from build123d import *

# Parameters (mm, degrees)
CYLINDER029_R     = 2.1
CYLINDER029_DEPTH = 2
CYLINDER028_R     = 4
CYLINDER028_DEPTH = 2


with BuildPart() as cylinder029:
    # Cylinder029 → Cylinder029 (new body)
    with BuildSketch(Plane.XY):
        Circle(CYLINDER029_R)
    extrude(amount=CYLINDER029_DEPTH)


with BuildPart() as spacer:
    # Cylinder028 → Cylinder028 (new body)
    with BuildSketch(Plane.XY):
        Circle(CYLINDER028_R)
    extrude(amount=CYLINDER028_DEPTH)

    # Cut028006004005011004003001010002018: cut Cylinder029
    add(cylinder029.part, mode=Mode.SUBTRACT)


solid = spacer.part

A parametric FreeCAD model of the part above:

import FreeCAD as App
import Part
import Sketcher
from FreeCAD import Vector
Q = App.Units.Quantity

doc = App.newDocument("Part")
body = doc.addObject("PartDesign::Body", "Body")

sketch1 = doc.addObject("Sketcher::SketchObject", "Sketch")
body.addObject(sketch1)
sketch1.AttachmentSupport = (doc.XY_Plane, [""])
sketch1.MapMode = "FlatFace"
sketch1.addGeometry(Part.Circle(Vector(0, 0, 0), Vector(0, 0, 1), 2.1), False)
sketch1.addConstraint([
    Sketcher.Constraint("Coincident", 0, 3, -1, 1),
    Sketcher.Constraint("Diameter", 0, Q("4.2 mm")),
])
pad1 = doc.addObject("PartDesign::Pad", "Pad")
body.addObject(pad1)
pad1.Profile = sketch1
pad1.Length = 2
body2 = doc.addObject("PartDesign::Body", "Body001")

sketch2 = doc.addObject("Sketcher::SketchObject", "Sketch001")
body2.addObject(sketch2)
sketch2.AttachmentSupport = (doc.getObject("XY_Plane001"), [""])
sketch2.MapMode = "FlatFace"
sketch2.addGeometry(Part.Circle(Vector(0, 0, 0), Vector(0, 0, 1), 4), False)
sketch2.addConstraint([
    Sketcher.Constraint("Coincident", 0, 3, -1, 1),
    Sketcher.Constraint("Diameter", 0, Q("8 mm")),
])
pad2 = doc.addObject("PartDesign::Pad", "Pad001")
body2.addObject(pad2)
pad2.Profile = sketch2
pad2.Length = 2
doc.recompute()

boolean = doc.addObject("PartDesign::Boolean", "Boolean")
body2.addObject(boolean)
boolean.Type = "Cut"
boolean.addObjects([body])

doc.recompute()
